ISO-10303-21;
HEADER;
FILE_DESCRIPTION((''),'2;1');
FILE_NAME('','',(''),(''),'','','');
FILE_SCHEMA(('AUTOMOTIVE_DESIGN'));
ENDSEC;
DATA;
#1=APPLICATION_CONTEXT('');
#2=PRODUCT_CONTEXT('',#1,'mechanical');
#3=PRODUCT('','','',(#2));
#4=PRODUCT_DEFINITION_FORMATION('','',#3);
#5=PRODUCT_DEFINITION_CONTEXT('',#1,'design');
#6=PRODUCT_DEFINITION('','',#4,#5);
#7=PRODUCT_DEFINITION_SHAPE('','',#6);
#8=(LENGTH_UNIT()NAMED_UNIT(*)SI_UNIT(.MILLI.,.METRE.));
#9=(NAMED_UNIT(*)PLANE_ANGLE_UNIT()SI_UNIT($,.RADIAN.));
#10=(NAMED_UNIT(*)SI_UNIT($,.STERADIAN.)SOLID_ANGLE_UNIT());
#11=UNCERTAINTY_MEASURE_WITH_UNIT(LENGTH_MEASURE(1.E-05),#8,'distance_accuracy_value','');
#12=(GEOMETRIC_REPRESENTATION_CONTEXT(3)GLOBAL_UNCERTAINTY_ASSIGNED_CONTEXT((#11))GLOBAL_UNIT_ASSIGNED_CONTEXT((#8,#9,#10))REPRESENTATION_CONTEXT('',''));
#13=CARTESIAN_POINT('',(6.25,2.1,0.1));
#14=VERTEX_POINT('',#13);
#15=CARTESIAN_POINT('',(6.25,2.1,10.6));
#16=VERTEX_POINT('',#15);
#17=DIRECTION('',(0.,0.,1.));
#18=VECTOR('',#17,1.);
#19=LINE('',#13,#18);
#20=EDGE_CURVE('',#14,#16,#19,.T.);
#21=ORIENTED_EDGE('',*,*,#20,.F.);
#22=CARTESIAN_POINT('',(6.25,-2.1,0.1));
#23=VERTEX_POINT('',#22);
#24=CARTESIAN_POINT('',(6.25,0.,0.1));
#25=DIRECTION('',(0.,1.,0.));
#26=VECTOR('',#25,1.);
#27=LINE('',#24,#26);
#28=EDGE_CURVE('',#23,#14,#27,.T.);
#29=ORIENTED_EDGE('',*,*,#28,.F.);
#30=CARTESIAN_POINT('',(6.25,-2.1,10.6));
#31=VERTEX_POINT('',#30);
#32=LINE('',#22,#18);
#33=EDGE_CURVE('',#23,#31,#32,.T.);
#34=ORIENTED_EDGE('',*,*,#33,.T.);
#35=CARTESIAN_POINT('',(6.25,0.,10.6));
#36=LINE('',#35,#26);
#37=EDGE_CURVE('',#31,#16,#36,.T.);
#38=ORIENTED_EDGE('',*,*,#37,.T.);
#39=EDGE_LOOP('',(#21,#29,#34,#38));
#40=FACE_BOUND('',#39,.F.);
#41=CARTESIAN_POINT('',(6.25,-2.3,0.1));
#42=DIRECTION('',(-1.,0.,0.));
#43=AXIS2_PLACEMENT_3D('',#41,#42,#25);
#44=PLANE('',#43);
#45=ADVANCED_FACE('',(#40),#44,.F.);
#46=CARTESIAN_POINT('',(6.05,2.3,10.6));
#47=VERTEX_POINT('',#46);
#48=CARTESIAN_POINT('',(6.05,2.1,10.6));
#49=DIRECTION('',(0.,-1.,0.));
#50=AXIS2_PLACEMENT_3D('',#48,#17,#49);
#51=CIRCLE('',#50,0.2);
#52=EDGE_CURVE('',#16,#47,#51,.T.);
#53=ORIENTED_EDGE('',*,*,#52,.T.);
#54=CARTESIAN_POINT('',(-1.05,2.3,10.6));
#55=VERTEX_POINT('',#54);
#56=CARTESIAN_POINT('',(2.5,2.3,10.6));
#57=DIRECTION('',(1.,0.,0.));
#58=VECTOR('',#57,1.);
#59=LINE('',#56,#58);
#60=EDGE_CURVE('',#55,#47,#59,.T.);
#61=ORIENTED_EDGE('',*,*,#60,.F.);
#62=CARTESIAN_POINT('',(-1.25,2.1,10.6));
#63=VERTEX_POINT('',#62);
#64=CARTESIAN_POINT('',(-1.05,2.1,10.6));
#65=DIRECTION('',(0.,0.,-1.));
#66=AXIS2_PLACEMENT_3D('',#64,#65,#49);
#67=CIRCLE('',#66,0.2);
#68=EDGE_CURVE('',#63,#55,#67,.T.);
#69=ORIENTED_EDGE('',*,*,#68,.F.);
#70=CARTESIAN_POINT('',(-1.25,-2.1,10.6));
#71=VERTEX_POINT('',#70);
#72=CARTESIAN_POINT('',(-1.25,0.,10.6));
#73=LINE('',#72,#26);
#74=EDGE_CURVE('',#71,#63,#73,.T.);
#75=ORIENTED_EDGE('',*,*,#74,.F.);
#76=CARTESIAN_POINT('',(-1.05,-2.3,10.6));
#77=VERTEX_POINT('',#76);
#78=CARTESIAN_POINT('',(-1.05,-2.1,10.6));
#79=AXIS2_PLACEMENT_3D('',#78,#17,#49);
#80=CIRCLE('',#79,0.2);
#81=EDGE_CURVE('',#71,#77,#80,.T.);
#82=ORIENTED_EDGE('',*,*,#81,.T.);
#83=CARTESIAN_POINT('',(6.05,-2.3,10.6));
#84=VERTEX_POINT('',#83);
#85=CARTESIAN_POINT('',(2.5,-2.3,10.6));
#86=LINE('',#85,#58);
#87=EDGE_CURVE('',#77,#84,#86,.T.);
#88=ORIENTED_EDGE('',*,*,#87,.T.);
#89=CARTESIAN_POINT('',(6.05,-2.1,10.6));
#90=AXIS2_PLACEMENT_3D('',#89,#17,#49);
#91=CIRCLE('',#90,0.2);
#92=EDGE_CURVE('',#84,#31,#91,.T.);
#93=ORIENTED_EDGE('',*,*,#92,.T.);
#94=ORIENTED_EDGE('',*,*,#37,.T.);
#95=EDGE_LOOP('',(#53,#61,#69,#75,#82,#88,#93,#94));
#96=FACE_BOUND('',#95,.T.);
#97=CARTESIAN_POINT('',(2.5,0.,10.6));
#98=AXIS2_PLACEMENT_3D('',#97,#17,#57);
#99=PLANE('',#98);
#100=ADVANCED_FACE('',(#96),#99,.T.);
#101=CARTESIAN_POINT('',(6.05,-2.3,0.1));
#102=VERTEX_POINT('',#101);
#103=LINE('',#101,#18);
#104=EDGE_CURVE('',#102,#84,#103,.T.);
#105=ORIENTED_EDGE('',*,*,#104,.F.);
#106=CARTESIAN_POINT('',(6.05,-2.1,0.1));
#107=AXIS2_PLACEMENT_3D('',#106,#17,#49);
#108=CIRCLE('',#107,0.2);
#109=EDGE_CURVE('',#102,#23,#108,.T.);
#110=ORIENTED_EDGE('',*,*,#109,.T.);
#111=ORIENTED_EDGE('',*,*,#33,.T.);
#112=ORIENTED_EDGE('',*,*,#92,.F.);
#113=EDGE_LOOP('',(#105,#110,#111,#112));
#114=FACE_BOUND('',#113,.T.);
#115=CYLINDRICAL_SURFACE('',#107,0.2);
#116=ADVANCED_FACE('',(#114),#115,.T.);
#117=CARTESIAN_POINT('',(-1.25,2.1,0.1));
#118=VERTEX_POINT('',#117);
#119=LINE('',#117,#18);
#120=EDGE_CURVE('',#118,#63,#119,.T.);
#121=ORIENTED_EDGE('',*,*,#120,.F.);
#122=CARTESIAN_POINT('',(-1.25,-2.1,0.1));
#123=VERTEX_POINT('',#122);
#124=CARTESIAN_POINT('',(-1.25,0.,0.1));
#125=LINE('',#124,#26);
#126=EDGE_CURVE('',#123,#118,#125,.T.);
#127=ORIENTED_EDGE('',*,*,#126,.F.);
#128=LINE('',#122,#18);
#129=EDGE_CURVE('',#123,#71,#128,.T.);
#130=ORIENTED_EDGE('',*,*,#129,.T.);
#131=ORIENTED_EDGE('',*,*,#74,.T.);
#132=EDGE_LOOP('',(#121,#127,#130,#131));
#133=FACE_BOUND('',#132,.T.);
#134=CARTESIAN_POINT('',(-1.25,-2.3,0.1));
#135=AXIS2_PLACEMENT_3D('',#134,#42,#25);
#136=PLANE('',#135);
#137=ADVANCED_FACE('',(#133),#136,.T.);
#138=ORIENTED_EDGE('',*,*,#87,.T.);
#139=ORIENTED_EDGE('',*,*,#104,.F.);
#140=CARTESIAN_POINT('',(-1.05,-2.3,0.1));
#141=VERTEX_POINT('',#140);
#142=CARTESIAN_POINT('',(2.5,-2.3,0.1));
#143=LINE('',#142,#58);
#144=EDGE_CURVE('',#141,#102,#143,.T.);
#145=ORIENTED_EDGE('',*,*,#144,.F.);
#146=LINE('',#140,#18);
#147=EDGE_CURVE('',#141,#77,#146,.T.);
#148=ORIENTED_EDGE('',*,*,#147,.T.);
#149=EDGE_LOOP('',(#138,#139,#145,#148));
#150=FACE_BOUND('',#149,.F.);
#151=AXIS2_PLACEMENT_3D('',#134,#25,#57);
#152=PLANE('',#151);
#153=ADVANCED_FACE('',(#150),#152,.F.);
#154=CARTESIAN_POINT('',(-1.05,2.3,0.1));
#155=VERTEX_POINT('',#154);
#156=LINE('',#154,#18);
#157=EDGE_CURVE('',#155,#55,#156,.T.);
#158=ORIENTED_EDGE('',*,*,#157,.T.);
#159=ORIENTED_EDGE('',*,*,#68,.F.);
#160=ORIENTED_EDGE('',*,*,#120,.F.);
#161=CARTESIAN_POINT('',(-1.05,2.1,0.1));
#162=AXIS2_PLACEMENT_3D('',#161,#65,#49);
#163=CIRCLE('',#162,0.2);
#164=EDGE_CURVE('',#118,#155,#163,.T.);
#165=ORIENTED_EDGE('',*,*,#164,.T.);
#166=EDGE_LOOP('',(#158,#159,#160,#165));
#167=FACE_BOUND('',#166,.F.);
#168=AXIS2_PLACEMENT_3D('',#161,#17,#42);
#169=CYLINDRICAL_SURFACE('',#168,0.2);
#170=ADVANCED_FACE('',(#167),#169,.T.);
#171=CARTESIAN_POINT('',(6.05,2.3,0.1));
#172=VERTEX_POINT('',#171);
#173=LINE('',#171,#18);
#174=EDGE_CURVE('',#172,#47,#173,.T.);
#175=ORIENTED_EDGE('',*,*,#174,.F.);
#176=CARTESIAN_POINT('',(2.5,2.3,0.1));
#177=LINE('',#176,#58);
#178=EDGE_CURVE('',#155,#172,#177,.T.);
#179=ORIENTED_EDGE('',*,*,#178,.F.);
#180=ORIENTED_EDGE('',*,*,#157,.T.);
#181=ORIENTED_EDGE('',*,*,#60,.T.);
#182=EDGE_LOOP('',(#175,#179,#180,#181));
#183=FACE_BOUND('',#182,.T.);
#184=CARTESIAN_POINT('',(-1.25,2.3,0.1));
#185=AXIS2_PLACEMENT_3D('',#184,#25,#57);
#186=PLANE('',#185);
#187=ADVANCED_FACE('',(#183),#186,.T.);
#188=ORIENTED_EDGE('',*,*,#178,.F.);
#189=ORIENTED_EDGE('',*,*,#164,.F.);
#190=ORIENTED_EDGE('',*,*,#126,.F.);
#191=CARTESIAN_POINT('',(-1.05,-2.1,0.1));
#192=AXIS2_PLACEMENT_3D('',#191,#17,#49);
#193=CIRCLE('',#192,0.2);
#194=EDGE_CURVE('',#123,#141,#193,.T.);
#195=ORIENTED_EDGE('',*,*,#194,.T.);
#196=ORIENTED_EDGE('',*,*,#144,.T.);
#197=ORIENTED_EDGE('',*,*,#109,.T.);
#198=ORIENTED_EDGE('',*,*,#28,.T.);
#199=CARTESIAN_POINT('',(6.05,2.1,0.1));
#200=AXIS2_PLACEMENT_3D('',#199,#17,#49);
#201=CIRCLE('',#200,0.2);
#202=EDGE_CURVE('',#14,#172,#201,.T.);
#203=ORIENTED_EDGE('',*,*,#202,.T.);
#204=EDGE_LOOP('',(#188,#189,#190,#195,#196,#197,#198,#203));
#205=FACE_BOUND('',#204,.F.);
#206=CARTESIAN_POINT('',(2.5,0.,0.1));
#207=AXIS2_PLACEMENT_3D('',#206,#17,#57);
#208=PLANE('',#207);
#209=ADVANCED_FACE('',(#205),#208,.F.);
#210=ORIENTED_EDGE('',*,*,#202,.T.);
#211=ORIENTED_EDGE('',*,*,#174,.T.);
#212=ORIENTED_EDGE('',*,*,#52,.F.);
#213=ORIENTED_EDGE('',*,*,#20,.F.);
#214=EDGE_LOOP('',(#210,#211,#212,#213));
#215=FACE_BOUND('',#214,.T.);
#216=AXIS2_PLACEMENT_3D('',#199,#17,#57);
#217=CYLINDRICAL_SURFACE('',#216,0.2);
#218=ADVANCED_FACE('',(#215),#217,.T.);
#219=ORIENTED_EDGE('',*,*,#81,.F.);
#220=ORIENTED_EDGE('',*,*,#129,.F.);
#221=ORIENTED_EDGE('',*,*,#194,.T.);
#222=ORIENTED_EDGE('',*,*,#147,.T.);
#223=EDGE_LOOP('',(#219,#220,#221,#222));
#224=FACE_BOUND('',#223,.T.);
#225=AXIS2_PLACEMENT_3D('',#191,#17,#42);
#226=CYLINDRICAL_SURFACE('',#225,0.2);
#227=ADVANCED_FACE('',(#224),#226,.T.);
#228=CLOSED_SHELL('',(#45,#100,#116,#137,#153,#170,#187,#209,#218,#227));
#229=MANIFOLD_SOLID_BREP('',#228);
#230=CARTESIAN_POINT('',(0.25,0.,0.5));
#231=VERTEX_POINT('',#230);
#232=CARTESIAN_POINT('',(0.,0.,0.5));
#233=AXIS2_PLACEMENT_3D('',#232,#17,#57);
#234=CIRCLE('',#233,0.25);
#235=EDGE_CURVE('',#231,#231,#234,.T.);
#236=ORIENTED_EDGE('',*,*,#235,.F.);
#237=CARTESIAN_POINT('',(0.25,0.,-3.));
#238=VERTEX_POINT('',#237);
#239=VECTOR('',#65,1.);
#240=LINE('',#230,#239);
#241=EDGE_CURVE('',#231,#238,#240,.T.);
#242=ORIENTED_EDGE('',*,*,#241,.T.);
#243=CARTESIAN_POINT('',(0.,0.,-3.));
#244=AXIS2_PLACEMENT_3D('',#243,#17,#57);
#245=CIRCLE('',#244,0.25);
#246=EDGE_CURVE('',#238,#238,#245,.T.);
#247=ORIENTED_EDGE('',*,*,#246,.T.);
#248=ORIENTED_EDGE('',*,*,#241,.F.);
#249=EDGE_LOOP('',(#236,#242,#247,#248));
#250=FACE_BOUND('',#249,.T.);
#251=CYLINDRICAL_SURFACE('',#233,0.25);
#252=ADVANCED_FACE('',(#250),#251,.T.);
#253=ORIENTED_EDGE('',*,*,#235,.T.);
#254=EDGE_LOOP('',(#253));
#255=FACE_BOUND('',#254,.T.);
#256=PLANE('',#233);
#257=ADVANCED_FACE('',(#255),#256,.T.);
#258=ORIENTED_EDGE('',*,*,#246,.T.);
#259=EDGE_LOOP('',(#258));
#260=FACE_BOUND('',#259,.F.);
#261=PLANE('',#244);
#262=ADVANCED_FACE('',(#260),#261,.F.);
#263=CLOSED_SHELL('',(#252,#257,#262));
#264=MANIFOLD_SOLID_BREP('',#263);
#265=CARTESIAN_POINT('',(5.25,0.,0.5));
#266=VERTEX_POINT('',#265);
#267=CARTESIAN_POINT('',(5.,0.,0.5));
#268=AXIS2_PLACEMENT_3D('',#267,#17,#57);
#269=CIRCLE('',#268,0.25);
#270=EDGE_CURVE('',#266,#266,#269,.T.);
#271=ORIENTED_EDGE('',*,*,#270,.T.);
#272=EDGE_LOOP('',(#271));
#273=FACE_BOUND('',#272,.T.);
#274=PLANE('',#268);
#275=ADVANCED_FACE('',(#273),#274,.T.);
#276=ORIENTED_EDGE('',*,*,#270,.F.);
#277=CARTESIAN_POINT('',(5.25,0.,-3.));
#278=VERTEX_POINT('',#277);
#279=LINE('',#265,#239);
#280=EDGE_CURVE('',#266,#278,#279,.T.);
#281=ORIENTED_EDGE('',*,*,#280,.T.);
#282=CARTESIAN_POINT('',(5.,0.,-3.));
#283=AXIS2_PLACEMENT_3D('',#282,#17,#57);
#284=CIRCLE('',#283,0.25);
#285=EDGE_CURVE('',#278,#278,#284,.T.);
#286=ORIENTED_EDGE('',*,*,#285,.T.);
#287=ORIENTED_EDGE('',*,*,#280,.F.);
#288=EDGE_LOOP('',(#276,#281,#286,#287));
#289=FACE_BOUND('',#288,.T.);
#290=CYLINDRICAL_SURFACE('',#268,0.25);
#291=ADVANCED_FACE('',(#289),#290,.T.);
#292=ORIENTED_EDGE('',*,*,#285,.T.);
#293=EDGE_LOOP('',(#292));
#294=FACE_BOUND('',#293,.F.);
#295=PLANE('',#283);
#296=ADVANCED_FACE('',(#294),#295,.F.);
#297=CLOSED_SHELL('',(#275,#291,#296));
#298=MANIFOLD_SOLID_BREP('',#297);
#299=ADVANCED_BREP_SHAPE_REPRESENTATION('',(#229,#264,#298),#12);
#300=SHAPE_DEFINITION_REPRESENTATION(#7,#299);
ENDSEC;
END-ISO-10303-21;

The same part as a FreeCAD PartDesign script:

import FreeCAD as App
import Part
import Sketcher
from FreeCAD import Vector


def edges_at(feature, points):
    """Names of the edges that pass closest to the given points."""
    edges = feature.Shape.Edges
    near = lambda p: min(range(len(edges)), key=lambda i: edges[i].distToShape(Part.Vertex(*p))[0])
    return sorted({f"Edge{near(p) + 1}" for p in points})


def add_polygon(sketch, points):
    """Adds a closed chain of lines whose ends are joined by coincident constraints."""
    first, n = sketch.GeometryCount, len(points)
    for a, b in zip(points, points[1:] + points[:1]):
        sketch.addGeometry(Part.LineSegment(App.Vector(*a, 0), App.Vector(*b, 0)), False)
    for i in range(n):
        sketch.addConstraint(Sketcher.Constraint("Coincident", first + i, 2, first + (i + 1) % n, 1))

doc = App.newDocument("Part")
body = doc.addObject("PartDesign::Body", "Body")
body.AllowCompound = True

sketch1 = doc.addObject("Sketcher::SketchObject", "Sketch")
body.addObject(sketch1)
sketch1.AttachmentSupport = (doc.XY_Plane, [""])
sketch1.MapMode = "FlatFace"
sketch1.AttachmentOffset = App.Placement(Vector(0, 0, 0.5), App.Rotation())
sketch1.addGeometry([
    Part.Circle(Vector(0, 0, 0), Vector(0, 0, 1), 0.25),
    Part.Circle(Vector(5, 0, 0), Vector(0, 0, 1), 0.25),
], False)
sketch1.addConstraint([
    Sketcher.Constraint("Coincident", 0, 3, -1, 1),
    Sketcher.Constraint("Equal", 0, 1),
    Sketcher.Constraint("PointOnObject", 1, 3, -1),
    Sketcher.Constraint("Diameter", 0, 0.5),
    Sketcher.Constraint("DistanceX", -1, 1, 1, 3, 5.0),
])
pad1 = doc.addObject("PartDesign::Pad", "Pad")
body.addObject(pad1)
pad1.Profile = sketch1
pad1.Length = 3.5
pad1.Reversed = True
body2 = doc.addObject("PartDesign::Body", "Body001")

sketch2 = doc.addObject("Sketcher::SketchObject", "Sketch001")
body2.addObject(sketch2)
sketch2.AttachmentSupport = (doc.getObject("XY_Plane001"), [""])
sketch2.MapMode = "FlatFace"
sketch2.AttachmentOffset = App.Placement(Vector(0, 0, 0.1), App.Rotation())
add_polygon(sketch2, [(-1.2, 2.3), (-1.2, -2.3), (6.2, -2.3), (6.2, 2.3)])
sketch2.addConstraint([
    Sketcher.Constraint("Vertical", 0),
    Sketcher.Constraint("Horizontal", 1),
    Sketcher.Constraint("Vertical", 2),
    Sketcher.Constraint("Horizontal", 3),
    Sketcher.Constraint("DistanceX", 1, 1, 1, 2, 7.5),
    Sketcher.Constraint("DistanceY", 0, 2, 0, 1, 4.6),
    Sketcher.Constraint("DistanceY", 0, 2, -1, 1, 2.3),
    Sketcher.Constraint("DistanceX", 0, 2, -1, 1, 1.25),
])
pad2 = doc.addObject("PartDesign::Pad", "Pad001")
body2.addObject(pad2)
pad2.Profile = sketch2
pad2.Length = 10.5
doc.recompute()

fillet = doc.addObject("PartDesign::Fillet", "Fillet")
body2.addObject(fillet)
fillet.Base = (pad2, edges_at(pad2, [
    (6.25, -2.3, 5.35),
    (6.25, 2.3, 5.35),
    (-1.25, -2.3, 5.35),
    (-1.25, 2.3, 5.35),
]))
fillet.Radius = 0.2

doc.recompute()
